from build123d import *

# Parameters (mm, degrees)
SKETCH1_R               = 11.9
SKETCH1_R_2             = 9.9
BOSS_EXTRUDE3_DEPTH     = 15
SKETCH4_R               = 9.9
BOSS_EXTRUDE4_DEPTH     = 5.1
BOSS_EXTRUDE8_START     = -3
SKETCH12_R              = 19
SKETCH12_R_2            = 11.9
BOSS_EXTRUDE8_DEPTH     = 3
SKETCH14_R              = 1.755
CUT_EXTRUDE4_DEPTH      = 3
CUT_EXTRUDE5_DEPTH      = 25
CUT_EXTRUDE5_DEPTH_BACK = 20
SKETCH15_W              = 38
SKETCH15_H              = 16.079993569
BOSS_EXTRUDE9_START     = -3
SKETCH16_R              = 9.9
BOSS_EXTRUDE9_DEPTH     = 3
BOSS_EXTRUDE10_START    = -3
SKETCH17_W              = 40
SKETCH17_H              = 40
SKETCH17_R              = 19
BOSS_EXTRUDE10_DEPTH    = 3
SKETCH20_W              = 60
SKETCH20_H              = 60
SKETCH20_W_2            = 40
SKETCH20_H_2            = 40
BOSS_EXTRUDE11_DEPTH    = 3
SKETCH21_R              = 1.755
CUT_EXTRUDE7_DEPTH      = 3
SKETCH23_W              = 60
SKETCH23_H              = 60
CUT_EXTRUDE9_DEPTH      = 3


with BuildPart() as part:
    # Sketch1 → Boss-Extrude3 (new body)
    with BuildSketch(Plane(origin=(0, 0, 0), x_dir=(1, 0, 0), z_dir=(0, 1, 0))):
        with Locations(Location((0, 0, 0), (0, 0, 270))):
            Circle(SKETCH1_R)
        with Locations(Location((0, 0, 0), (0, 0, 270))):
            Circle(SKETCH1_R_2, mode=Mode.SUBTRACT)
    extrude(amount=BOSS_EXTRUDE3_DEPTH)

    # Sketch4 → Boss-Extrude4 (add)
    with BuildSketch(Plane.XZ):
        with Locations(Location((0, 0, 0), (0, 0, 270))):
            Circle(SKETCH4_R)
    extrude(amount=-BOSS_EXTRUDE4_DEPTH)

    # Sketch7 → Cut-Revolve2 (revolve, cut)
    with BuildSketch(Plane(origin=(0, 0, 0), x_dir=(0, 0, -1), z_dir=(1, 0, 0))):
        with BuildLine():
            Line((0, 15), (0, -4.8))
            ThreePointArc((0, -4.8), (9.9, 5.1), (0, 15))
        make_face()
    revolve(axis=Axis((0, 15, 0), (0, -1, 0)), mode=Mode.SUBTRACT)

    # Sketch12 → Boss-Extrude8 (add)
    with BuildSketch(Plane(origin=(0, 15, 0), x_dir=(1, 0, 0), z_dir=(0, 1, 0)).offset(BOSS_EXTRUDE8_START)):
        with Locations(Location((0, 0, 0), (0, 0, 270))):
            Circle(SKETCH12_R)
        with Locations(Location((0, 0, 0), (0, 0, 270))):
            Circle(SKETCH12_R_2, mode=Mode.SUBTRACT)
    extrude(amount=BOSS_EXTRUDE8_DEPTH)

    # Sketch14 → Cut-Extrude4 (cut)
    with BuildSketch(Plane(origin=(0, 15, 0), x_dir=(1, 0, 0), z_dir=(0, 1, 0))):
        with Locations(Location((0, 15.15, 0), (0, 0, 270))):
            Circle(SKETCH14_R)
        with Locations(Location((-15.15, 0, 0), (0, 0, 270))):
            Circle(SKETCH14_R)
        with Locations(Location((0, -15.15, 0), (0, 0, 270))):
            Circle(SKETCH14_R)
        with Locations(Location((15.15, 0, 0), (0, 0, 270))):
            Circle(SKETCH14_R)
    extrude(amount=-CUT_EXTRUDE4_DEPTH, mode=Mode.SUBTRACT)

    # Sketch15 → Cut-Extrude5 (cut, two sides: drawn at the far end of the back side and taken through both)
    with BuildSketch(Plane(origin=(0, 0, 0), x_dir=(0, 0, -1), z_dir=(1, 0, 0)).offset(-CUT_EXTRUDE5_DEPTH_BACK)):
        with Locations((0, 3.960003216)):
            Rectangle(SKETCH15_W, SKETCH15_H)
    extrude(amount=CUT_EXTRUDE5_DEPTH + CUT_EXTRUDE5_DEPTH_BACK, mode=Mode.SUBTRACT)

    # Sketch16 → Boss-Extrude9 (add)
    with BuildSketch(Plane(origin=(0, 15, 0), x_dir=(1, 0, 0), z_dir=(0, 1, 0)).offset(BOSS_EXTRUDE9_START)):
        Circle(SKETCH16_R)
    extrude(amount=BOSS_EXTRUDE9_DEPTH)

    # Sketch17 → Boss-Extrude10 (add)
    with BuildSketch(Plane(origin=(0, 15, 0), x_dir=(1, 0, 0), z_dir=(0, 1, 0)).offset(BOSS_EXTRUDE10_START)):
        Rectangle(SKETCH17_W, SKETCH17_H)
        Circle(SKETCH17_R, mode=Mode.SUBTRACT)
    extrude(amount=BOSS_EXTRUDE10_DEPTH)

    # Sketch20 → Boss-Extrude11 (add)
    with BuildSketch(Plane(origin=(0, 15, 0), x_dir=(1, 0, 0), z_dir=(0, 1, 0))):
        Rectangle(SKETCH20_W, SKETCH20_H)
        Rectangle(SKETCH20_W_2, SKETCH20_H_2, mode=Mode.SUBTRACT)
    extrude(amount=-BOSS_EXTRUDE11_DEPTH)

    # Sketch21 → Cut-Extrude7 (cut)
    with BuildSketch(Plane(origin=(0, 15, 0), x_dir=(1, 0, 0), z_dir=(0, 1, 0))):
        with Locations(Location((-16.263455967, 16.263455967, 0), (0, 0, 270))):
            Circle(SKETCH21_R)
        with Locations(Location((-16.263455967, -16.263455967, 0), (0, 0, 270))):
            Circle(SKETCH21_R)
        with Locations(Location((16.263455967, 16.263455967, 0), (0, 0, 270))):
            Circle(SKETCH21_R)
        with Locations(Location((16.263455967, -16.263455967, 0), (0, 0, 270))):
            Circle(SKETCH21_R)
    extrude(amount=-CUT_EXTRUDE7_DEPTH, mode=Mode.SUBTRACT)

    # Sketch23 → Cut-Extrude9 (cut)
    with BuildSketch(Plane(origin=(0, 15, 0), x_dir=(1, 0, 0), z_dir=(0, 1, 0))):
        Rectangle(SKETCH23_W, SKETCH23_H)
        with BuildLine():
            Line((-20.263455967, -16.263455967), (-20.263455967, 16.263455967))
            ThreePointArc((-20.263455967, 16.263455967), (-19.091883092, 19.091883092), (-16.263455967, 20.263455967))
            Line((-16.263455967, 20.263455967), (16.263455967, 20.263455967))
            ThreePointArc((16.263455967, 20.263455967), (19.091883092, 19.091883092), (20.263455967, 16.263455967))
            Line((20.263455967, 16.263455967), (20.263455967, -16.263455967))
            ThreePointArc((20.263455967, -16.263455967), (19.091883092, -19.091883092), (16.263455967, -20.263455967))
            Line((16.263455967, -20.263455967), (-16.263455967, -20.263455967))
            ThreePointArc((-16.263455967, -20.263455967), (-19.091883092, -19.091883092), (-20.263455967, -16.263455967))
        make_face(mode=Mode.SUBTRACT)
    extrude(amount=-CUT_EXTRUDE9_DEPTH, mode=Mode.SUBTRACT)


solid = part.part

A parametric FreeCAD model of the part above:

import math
import FreeCAD as App
import Part
import Sketcher

V = App.Vector

doc = App.newDocument("Part")
params = doc.addObject("Spreadsheet::Sheet", "Params")
for row, (alias, value) in enumerate([
    ("sketch1_diameter", "23.8 mm"),
    ("sketch1_diameter2", "19.8 mm"),
    ("pad1_length", "15 mm"),
    ("sketch2_diameter", "19.8 mm"),
    ("pad2_length", "5.1 mm"),
    ("sketch3_radius", "9.9 mm"),
    ("groove_angle", "360 deg"),
    ("sketch4_diameter", "38 mm"),
    ("sketch4_diameter2", "23.8 mm"),
    ("pad3_length", "3 mm"),
    ("sketch5_diameter", "3.51 mm"),
    ("pocket1_length", "3 mm"),
    ("sketch6_height", "38 mm"),
    ("sketch7_diameter", "19.8 mm"),
    ("pad4_length", "3 mm"),
    ("sketch8_diameter", "38 mm"),
    ("sketch8_width", "40 mm"),
    ("pad5_length", "3 mm"),
    ("sketch9_width", "60 mm"),
    ("sketch9_width2", "40 mm"),
    ("pad6_length", "3 mm"),
    ("sketch10_diameter", "3.51 mm"),
    ("pocket3_length", "3 mm"),
    ("sketch11_radius", "4 mm"),
    ("sketch11_width", "60 mm"),
    ("pocket4_length", "3 mm"),
], start=1):
    params.set(f"A{row}", alias)
    params.set(f"B{row}", "=" + value)
    params.setAlias(f"B{row}", alias)

body = doc.addObject("PartDesign::Body", "Body")

# Sketch on XZ plane
sketch1 = body.newObject("Sketcher::SketchObject", "Sketch")
sketch1.AttachmentSupport = (doc.getObject("XZ_Plane"), [""])
sketch1.MapMode = "FlatFace"
sketch1.addGeometry(Part.Circle(V(0, 0, 0), V(0, 0, 1), 12), False)
sketch1.addGeometry(Part.Circle(V(0, 0, 0), V(0, 0, 1), 10), False)
sketch1.addConstraint(Sketcher.Constraint("Coincident", 0, 3, -1, 1))
sketch1.addConstraint(Sketcher.Constraint("Coincident", 1, 3, -1, 1))
sketch1.addConstraint(Sketcher.Constraint("Diameter", 0, 23.8))
sketch1.addConstraint(Sketcher.Constraint("Diameter", 1, 19.8))
sketch1.setExpression("Constraints[2]", "Params.sketch1_diameter")
sketch1.setExpression("Constraints[3]", "Params.sketch1_diameter2")
pad1 = body.newObject("PartDesign::Pad", "Pad")
pad1.Profile = sketch1
pad1.setExpression("Length", "Params.pad1_length")
pad1.Reversed = True

# Sketch on XZ plane
sketch2 = body.newObject("Sketcher::SketchObject", "Sketch001")
sketch2.AttachmentSupport = (doc.getObject("XZ_Plane"), [""])
sketch2.MapMode = "FlatFace"
sketch2.addGeometry(Part.Circle(V(0, 0, 0), V(0, 0, 1), 10), False)
sketch2.addConstraint(Sketcher.Constraint("Coincident", 0, 3, -1, 1))
sketch2.addConstraint(Sketcher.Constraint("Diameter", 0, 19.8))
sketch2.setExpression("Constraints[1]", "Params.sketch2_diameter")
pad2 = body.newObject("PartDesign::Pad", "Pad001")
pad2.Profile = sketch2
pad2.setExpression("Length", "Params.pad2_length")
pad2.Reversed = True

# Sketch on YZ plane
sketch3 = body.newObject("Sketcher::SketchObject", "Sketch002")
sketch3.AttachmentSupport = (doc.getObject("YZ_Plane"), [""])
sketch3.MapMode = "FlatFace"
sketch3.addGeometry(Part.LineSegment(V(15, 0, 0), V(-5, 0, 0)), False)
sketch3.addGeometry(Part.ArcOfCircle(Part.Circle(V(5, 0, 0), V(0, 0, 1), 10), math.radians(180), math.radians(360)), False)
sketch3.addConstraint(Sketcher.Constraint("Coincident", 0, 1, 1, 2))
sketch3.addConstraint(Sketcher.Constraint("Coincident", 1, 1, 0, 2))
sketch3.addConstraint(Sketcher.Constraint("Horizontal", 0))
sketch3.addConstraint(Sketcher.Constraint("PointOnObject", 1, 3, -1))
sketch3.addConstraint(Sketcher.Constraint("PointOnObject", 0, 1, -1))
sketch3.addConstraint(Sketcher.Constraint("Radius", 1, 9.9))
sketch3.addConstraint(Sketcher.Constraint("DistanceX", -1, 1, 0, 1, 15.0))
sketch3.setExpression("Constraints[5]", "Params.sketch3_radius")
groove = body.newObject("PartDesign::Groove", "Groove")
groove.Profile = sketch3
groove.ReferenceAxis = (sketch3, ["H_Axis"])
groove.setExpression("Angle", "Params.groove_angle")

# Sketch on XZ plane
sketch4 = body.newObject("Sketcher::SketchObject", "Sketch003")
sketch4.AttachmentSupport = (doc.getObject("XZ_Plane"), [""])
sketch4.MapMode = "FlatFace"
sketch4.AttachmentOffset = App.Placement(V(0, 0, -12), App.Rotation())
sketch4.addGeometry(Part.Circle(V(0, 0, 0), V(0, 0, 1), 19), False)
sketch4.addGeometry(Part.Circle(V(0, 0, 0), V(0, 0, 1), 12), False)
sketch4.addConstraint(Sketcher.Constraint("Coincident", 0, 3, -1, 1))
sketch4.addConstraint(Sketcher.Constraint("Coincident", 1, 3, -1, 1))
sketch4.addConstraint(Sketcher.Constraint("Diameter", 0, 38.0))
sketch4.addConstraint(Sketcher.Constraint("Diameter", 1, 23.8))
sketch4.setExpression("Constraints[2]", "Params.sketch4_diameter")
sketch4.setExpression("Constraints[3]", "Params.sketch4_diameter2")
pad3 = body.newObject("PartDesign::Pad", "Pad002")
pad3.Profile = sketch4
pad3.setExpression("Length", "Params.pad3_length")
pad3.Reversed = True

# Sketch on XZ plane
sketch5 = body.newObject("Sketcher::SketchObject", "Sketch004")
sketch5.AttachmentSupport = (doc.getObject("XZ_Plane"), [""])
sketch5.MapMode = "FlatFace"
sketch5.AttachmentOffset = App.Placement(V(0, 0, -15), App.Rotation())
sketch5.addGeometry(Part.Circle(V(0, -15.2, 0), V(0, 0, 1), 1.8), False)
sketch5.addGeometry(Part.Circle(V(-15.2, 0, 0), V(0, 0, 1), 1.8), False)
sketch5.addGeometry(Part.Circle(V(0, 15.2, 0), V(0, 0, 1), 1.8), False)
sketch5.addGeometry(Part.Circle(V(15.2, 0, 0), V(0, 0, 1), 1.8), False)
sketch5.addConstraint(Sketcher.Constraint("Equal", 0, 1))
sketch5.addConstraint(Sketcher.Constraint("Equal", 1, 2))
sketch5.addConstraint(Sketcher.Constraint("Equal", 2, 3))
sketch5.addConstraint(Sketcher.Constraint("Symmetric", 0, 3, 2, 3, -1, 1))
sketch5.addConstraint(Sketcher.Constraint("Symmetric", 1, 3, 3, 3, -1, 1))
sketch5.addConstraint(Sketcher.Constraint("PointOnObject", 0, 3, -2))
sketch5.addConstraint(Sketcher.Constraint("PointOnObject", 1, 3, -1))
sketch5.addConstraint(Sketcher.Constraint("Diameter", 0, 3.51))
sketch5.addConstraint(Sketcher.Constraint("DistanceY", 0, 3, 2, 3, 30.3))
sketch5.addConstraint(Sketcher.Constraint("DistanceX", 1, 3, 3, 3, 30.3))
sketch5.setExpression("Constraints[7]", "Params.sketch5_diameter")
pocket1 = body.newObject("PartDesign::Pocket", "Pocket")
pocket1.Profile = sketch5
pocket1.setExpression("Length", "Params.pocket1_length")
pocket1.Reversed = True

# Sketch on YZ plane
sketch6 = body.newObject("Sketcher::SketchObject", "Sketch005")
sketch6.AttachmentSupport = (doc.getObject("YZ_Plane"), [""])
sketch6.MapMode = "FlatFace"
sketch6.addGeometry(Part.LineSegment(V(12, 19, 0), V(-4, 19, 0)), False)
sketch6.addGeometry(Part.LineSegment(V(-4, 19, 0), V(-4, -19, 0)), False)
sketch6.addGeometry(Part.LineSegment(V(-4, -19, 0), V(12, -19, 0)), False)
sketch6.addGeometry(Part.LineSegment(V(12, -19, 0), V(12, 19, 0)), False)
sketch6.addConstraint(Sketcher.Constraint("Coincident", 0, 2, 1, 1))
sketch6.addConstraint(Sketcher.Constraint("Coincident", 1, 2, 2, 1))
sketch6.addConstraint(Sketcher.Constraint("Coincident", 2, 2, 3, 1))
sketch6.addConstraint(Sketcher.Constraint("Coincident", 3, 2, 0, 1))
sketch6.addConstraint(Sketcher.Constraint("Horizontal", 0))
sketch6.addConstraint(Sketcher.Constraint("Vertical", 1))
sketch6.addConstraint(Sketcher.Constraint("Horizontal", 2))
sketch6.addConstraint(Sketcher.Constraint("Vertical", 3))
sketch6.addConstraint(Sketcher.Constraint("DistanceY", 1, 2, 1, 1, 38.0))
sketch6.addConstraint(Sketcher.Constraint("DistanceY", -1, 1, 0, 2, 19.0))
sketch6.addConstraint(Sketcher.Constraint("DistanceX", -1, 1, 2, 2, 12.0))
sketch6.addConstraint(Sketcher.Constraint("DistanceX", 0, 2, 0, 1, 16.079994))
sketch6.setExpression("Constraints[8]", "Params.sketch6_height")
pocket2 = body.newObject("PartDesign::Pocket", "Pocket001")
pocket2.Profile = sketch6
pocket2.Type = "ThroughAll"
pocket2.Midplane = True

# Sketch on XZ plane
sketch7 = body.newObject("Sketcher::SketchObject", "Sketch006")
sketch7.AttachmentSupport = (doc.getObject("XZ_Plane"), [""])
sketch7.MapMode = "FlatFace"
sketch7.AttachmentOffset = App.Placement(V(0, 0, -12), App.Rotation())
sketch7.addGeometry(Part.Circle(V(0, 0, 0), V(0, 0, 1), 10), False)
sketch7.addConstraint(Sketcher.Constraint("Coincident", 0, 3, -1, 1))
sketch7.addConstraint(Sketcher.Constraint("Diameter", 0, 19.8))
sketch7.setExpression("Constraints[1]", "Params.sketch7_diameter")
pad4 = body.newObject("PartDesign::Pad", "Pad003")
pad4.Profile = sketch7
pad4.setExpression("Length", "Params.pad4_length")
pad4.Reversed = True

# Sketch on XZ plane
sketch8 = body.newObject("Sketcher::SketchObject", "Sketch007")
sketch8.AttachmentSupport = (doc.getObject("XZ_Plane"), [""])
sketch8.MapMode = "FlatFace"
sketch8.AttachmentOffset = App.Placement(V(0, 0, -12), App.Rotation())
sketch8.addGeometry(Part.LineSegment(V(-20, -20, 0), V(-20, 20, 0)), False)
sketch8.addGeometry(Part.LineSegment(V(-20, 20, 0), V(20, 20, 0)), False)
sketch8.addGeometry(Part.LineSegment(V(20, 20, 0), V(20, -20, 0)), False)
sketch8.addGeometry(Part.LineSegment(V(20, -20, 0), V(-20, -20, 0)), False)
sketch8.addGeometry(Part.Circle(V(0, 0, 0), V(0, 0, 1), 19), False)
sketch8.addConstraint(Sketcher.Constraint("Coincident", 0, 2, 1, 1))
sketch8.addConstraint(Sketcher.Constraint("Coincident", 1, 2, 2, 1))
sketch8.addConstraint(Sketcher.Constraint("Coincident", 2, 2, 3, 1))
sketch8.addConstraint(Sketcher.Constraint("Coincident", 3, 2, 0, 1))
sketch8.addConstraint(Sketcher.Constraint("Vertical", 0))
sketch8.addConstraint(Sketcher.Constraint("Horizontal", 1))
sketch8.addConstraint(Sketcher.Constraint("Vertical", 2))
sketch8.addConstraint(Sketcher.Constraint("Horizontal", 3))
sketch8.addConstraint(Sketcher.Constraint("Coincident", 4, 3, -1, 1))
sketch8.addConstraint(Sketcher.Constraint("Symmetric", 0, 2, 2, 2, -1, 1))
sketch8.addConstraint(Sketcher.Constraint("Equal", 3, 0))
sketch8.addConstraint(Sketcher.Constraint("Diameter", 4, 38.0))
sketch8.addConstraint(Sketcher.Constraint("DistanceX", 1, 1, 1, 2, 40.0))
sketch8.setExpression("Constraints[11]", "Params.sketch8_diameter")
sketch8.setExpression("Constraints[12]", "Params.sketch8_width")
pad5 = body.newObject("PartDesign::Pad", "Pad004")
pad5.Profile = sketch8
pad5.setExpression("Length", "Params.pad5_length")
pad5.Reversed = True

# Sketch on XZ plane
sketch9 = body.newObject("Sketcher::SketchObject", "Sketch008")
sketch9.AttachmentSupport = (doc.getObject("XZ_Plane"), [""])
sketch9.MapMode = "FlatFace"
sketch9.AttachmentOffset = App.Placement(V(0, 0, -15), App.Rotation())
sketch9.addGeometry(Part.LineSegment(V(-30, -30, 0), V(-30, 30, 0)), False)
sketch9.addGeometry(Part.LineSegment(V(-30, 30, 0), V(30, 30, 0)), False)
sketch9.addGeometry(Part.LineSegment(V(30, 30, 0), V(30, -30, 0)), False)
sketch9.addGeometry(Part.LineSegment(V(30, -30, 0), V(-30, -30, 0)), False)
sketch9.addGeometry(Part.LineSegment(V(20, 20, 0), V(-20, 20, 0)), False)
sketch9.addGeometry(Part.LineSegment(V(-20, 20, 0), V(-20, -20, 0)), False)
sketch9.addGeometry(Part.LineSegment(V(-20, -20, 0), V(20, -20, 0)), False)
sketch9.addGeometry(Part.LineSegment(V(20, -20, 0), V(20, 20, 0)), False)
sketch9.addConstraint(Sketcher.Constraint("Coincident", 0, 2, 1, 1))
sketch9.addConstraint(Sketcher.Constraint("Coincident", 1, 2, 2, 1))
sketch9.addConstraint(Sketcher.Constraint("Coincident", 2, 2, 3, 1))
sketch9.addConstraint(Sketcher.Constraint("Coincident", 3, 2, 0, 1))
sketch9.addConstraint(Sketcher.Constraint("Coincident", 4, 2, 5, 1))
sketch9.addConstraint(Sketcher.Constraint("Coincident", 5, 2, 6, 1))
sketch9.addConstraint(Sketcher.Constraint("Coincident", 6, 2, 7, 1))
sketch9.addConstraint(Sketcher.Constraint("Coincident", 7, 2, 4, 1))
sketch9.addConstraint(Sketcher.Constraint("Vertical", 0))
sketch9.addConstraint(Sketcher.Constraint("Horizontal", 1))
sketch9.addConstraint(Sketcher.Constraint("Vertical", 2))
sketch9.addConstraint(Sketcher.Constraint("Horizontal", 3))
sketch9.addConstraint(Sketcher.Constraint("Horizontal", 4))
sketch9.addConstraint(Sketcher.Constraint("Vertical", 5))
sketch9.addConstraint(Sketcher.Constraint("Horizontal", 6))
sketch9.addConstraint(Sketcher.Constraint("Vertical", 7))
sketch9.addConstraint(Sketcher.Constraint("Symmetric", 0, 2, 2, 2, -1, 1))
sketch9.addConstraint(Sketcher.Constraint("Symmetric", 4, 2, 6, 2, -1, 1))
sketch9.addConstraint(Sketcher.Constraint("Equal", 3, 0))
sketch9.addConstraint(Sketcher.Constraint("Equal", 6, 5))
sketch9.addConstraint(Sketcher.Constraint("DistanceX", 1, 1, 1, 2, 60.0))
sketch9.addConstraint(Sketcher.Constraint("DistanceX", 4, 2, 4, 1, 40.0))
sketch9.setExpression("Constraints[20]", "Params.sketch9_width")
sketch9.setExpression("Constraints[21]", "Params.sketch9_width2")
pad6 = body.newObject("PartDesign::Pad", "Pad005")
pad6.Profile = sketch9
pad6.setExpression("Length", "Params.pad6_length")

# Sketch on XZ plane
sketch10 = body.newObject("Sketcher::SketchObject", "Sketch009")
sketch10.AttachmentSupport = (doc.getObject("XZ_Plane"), [""])
sketch10.MapMode = "FlatFace"
sketch10.AttachmentOffset = App.Placement(V(0, 0, -15), App.Rotation())
sketch10.addGeometry(Part.Circle(V(-16.3, -16.3, 0), V(0, 0, 1), 1.8), False)
sketch10.addGeometry(Part.Circle(V(-16.3, 16.3, 0), V(0, 0, 1), 1.8), False)
sketch10.addGeometry(Part.Circle(V(16.3, -16.3, 0), V(0, 0, 1), 1.8), False)
sketch10.addGeometry(Part.Circle(V(16.3, 16.3, 0), V(0, 0, 1), 1.8), False)
sketch10.addConstraint(Sketcher.Constraint("Equal", 0, 1))
sketch10.addConstraint(Sketcher.Constraint("Equal", 1, 2))
sketch10.addConstraint(Sketcher.Constraint("Equal", 2, 3))
sketch10.addConstraint(Sketcher.Constraint("Symmetric", 1, 3, 2, 3, -1, 1))
sketch10.addConstraint(Sketcher.Constraint("Symmetric", 0, 3, 3, 3, -1, 1))
sketch10.addConstraint(Sketcher.Constraint("Symmetric", 0, 3, 2, 3, -2))
sketch10.addConstraint(Sketcher.Constraint("Diameter", 0, 3.51))
sketch10.addConstraint(Sketcher.Constraint("DistanceY", 0, 3, 1, 3, 32.526912))
sketch10.addConstraint(Sketcher.Constraint("DistanceX", 0, 3, 2, 3, 32.526912))
sketch10.setExpression("Constraints[6]", "Params.sketch10_diameter")
pocket3 = body.newObject("PartDesign::Pocket", "Pocket002")
pocket3.Profile = sketch10
pocket3.setExpression("Length", "Params.pocket3_length")
pocket3.Reversed = True

# Sketch on XZ plane
sketch11 = body.newObject("Sketcher::SketchObject", "Sketch010")
sketch11.AttachmentSupport = (doc.getObject("XZ_Plane"), [""])
sketch11.MapMode = "FlatFace"
sketch11.AttachmentOffset = App.Placement(V(0, 0, -15), App.Rotation())
sketch11.addGeometry(Part.LineSegment(V(-30, -30, 0), V(-30, 30, 0)), False)
sketch11.addGeometry(Part.LineSegment(V(-30, 30, 0), V(30, 30, 0)), False)
sketch11.addGeometry(Part.LineSegment(V(30, 30, 0), V(30, -30, 0)), False)
sketch11.addGeometry(Part.LineSegment(V(30, -30, 0), V(-30, -30, 0)), False)
sketch11.addGeometry(Part.ArcOfCircle(Part.Circle(V(-16.3, 16.3, 0), V(0, 0, 1), 4), math.radians(90), math.radians(180)), False)
sketch11.addGeometry(Part.LineSegment(V(-20.3, 16.3, 0), V(-20.3, -16.3, 0)), False)
sketch11.addGeometry(Part.ArcOfCircle(Part.Circle(V(-16.3, -16.3, 0), V(0, 0, 1), 4), math.radians(180), math.radians(270)), False)
sketch11.addGeometry(Part.LineSegment(V(-16.3, -20.3, 0), V(16.3, -20.3, 0)), False)
sketch11.addGeometry(Part.ArcOfCircle(Part.Circle(V(16.3, -16.3, 0), V(0, 0, 1), 4), math.radians(-90), math.radians(0)), False)
sketch11.addGeometry(Part.LineSegment(V(20.3, -16.3, 0), V(20.3, 16.3, 0)), False)
sketch11.addGeometry(Part.ArcOfCircle(Part.Circle(V(16.3, 16.3, 0), V(0, 0, 1), 4), math.radians(0), math.radians(90)), False)
sketch11.addGeometry(Part.LineSegment(V(16.3, 20.3, 0), V(-16.3, 20.3, 0)), False)
sketch11.addConstraint(Sketcher.Constraint("Coincident", 0, 2, 1, 1))
sketch11.addConstraint(Sketcher.Constraint("Coincident", 1, 2, 2, 1))
sketch11.addConstraint(Sketcher.Constraint("Coincident", 2, 2, 3, 1))
sketch11.addConstraint(Sketcher.Constraint("Coincident", 3, 2, 0, 1))
sketch11.addConstraint(Sketcher.Constraint("Tangent", 4, 2, 5, 1))
sketch11.addConstraint(Sketcher.Constraint("Tangent", 5, 2, 6, 1))
sketch11.addConstraint(Sketcher.Constraint("Tangent", 6, 2, 7, 1))
sketch11.addConstraint(Sketcher.Constraint("Tangent", 7, 2, 8, 1))
sketch11.addConstraint(Sketcher.Constraint("Tangent", 8, 2, 9, 1))
sketch11.addConstraint(Sketcher.Constraint("Tangent", 9, 2, 10, 1))
sketch11.addConstraint(Sketcher.Constraint("Tangent", 10, 2, 11, 1))
sketch11.addConstraint(Sketcher.Constraint("Tangent", 11, 2, 4, 1))
sketch11.addConstraint(Sketcher.Constraint("Vertical", 0))
sketch11.addConstraint(Sketcher.Constraint("Horizontal", 1))
sketch11.addConstraint(Sketcher.Constraint("Vertical", 2))
sketch11.addConstraint(Sketcher.Constraint("Horizontal", 3))
sketch11.addConstraint(Sketcher.Constraint("Vertical", 5))
sketch11.addConstraint(Sketcher.Constraint("Horizontal", 7))
sketch11.addConstraint(Sketcher.Constraint("Vertical", 9))
sketch11.addConstraint(Sketcher.Constraint("Horizontal", 11))
sketch11.addConstraint(Sketcher.Constraint("Equal", 4, 6))
sketch11.addConstraint(Sketcher.Constraint("Equal", 6, 8))
sketch11.addConstraint(Sketcher.Constraint("Equal", 8, 10))
sketch11.addConstraint(Sketcher.Constraint("Symmetric", 4, 3, 8, 3, -1, 1))
sketch11.addConstraint(Sketcher.Constraint("Symmetric", 0, 2, 2, 2, -1, 1))
sketch11.addConstraint(Sketcher.Constraint("Equal", 3, 0))
sketch11.addConstraint(Sketcher.Constraint("Equal", 11, 5))
sketch11.addConstraint(Sketcher.Constraint("Radius", 4, 4.0))
sketch11.addConstraint(Sketcher.Constraint("DistanceX", 1, 1, 1, 2, 60.0))
sketch11.addConstraint(Sketcher.Constraint("DistanceX", 7, 1, 7, 2, 32.526912))
sketch11.setExpression("Constraints[27]", "Params.sketch11_radius")
sketch11.setExpression("Constraints[28]", "Params.sketch11_width")
pocket4 = body.newObject("PartDesign::Pocket", "Pocket003")
pocket4.Profile = sketch11
pocket4.setExpression("Length", "Params.pocket4_length")
pocket4.Reversed = True

doc.recompute()
